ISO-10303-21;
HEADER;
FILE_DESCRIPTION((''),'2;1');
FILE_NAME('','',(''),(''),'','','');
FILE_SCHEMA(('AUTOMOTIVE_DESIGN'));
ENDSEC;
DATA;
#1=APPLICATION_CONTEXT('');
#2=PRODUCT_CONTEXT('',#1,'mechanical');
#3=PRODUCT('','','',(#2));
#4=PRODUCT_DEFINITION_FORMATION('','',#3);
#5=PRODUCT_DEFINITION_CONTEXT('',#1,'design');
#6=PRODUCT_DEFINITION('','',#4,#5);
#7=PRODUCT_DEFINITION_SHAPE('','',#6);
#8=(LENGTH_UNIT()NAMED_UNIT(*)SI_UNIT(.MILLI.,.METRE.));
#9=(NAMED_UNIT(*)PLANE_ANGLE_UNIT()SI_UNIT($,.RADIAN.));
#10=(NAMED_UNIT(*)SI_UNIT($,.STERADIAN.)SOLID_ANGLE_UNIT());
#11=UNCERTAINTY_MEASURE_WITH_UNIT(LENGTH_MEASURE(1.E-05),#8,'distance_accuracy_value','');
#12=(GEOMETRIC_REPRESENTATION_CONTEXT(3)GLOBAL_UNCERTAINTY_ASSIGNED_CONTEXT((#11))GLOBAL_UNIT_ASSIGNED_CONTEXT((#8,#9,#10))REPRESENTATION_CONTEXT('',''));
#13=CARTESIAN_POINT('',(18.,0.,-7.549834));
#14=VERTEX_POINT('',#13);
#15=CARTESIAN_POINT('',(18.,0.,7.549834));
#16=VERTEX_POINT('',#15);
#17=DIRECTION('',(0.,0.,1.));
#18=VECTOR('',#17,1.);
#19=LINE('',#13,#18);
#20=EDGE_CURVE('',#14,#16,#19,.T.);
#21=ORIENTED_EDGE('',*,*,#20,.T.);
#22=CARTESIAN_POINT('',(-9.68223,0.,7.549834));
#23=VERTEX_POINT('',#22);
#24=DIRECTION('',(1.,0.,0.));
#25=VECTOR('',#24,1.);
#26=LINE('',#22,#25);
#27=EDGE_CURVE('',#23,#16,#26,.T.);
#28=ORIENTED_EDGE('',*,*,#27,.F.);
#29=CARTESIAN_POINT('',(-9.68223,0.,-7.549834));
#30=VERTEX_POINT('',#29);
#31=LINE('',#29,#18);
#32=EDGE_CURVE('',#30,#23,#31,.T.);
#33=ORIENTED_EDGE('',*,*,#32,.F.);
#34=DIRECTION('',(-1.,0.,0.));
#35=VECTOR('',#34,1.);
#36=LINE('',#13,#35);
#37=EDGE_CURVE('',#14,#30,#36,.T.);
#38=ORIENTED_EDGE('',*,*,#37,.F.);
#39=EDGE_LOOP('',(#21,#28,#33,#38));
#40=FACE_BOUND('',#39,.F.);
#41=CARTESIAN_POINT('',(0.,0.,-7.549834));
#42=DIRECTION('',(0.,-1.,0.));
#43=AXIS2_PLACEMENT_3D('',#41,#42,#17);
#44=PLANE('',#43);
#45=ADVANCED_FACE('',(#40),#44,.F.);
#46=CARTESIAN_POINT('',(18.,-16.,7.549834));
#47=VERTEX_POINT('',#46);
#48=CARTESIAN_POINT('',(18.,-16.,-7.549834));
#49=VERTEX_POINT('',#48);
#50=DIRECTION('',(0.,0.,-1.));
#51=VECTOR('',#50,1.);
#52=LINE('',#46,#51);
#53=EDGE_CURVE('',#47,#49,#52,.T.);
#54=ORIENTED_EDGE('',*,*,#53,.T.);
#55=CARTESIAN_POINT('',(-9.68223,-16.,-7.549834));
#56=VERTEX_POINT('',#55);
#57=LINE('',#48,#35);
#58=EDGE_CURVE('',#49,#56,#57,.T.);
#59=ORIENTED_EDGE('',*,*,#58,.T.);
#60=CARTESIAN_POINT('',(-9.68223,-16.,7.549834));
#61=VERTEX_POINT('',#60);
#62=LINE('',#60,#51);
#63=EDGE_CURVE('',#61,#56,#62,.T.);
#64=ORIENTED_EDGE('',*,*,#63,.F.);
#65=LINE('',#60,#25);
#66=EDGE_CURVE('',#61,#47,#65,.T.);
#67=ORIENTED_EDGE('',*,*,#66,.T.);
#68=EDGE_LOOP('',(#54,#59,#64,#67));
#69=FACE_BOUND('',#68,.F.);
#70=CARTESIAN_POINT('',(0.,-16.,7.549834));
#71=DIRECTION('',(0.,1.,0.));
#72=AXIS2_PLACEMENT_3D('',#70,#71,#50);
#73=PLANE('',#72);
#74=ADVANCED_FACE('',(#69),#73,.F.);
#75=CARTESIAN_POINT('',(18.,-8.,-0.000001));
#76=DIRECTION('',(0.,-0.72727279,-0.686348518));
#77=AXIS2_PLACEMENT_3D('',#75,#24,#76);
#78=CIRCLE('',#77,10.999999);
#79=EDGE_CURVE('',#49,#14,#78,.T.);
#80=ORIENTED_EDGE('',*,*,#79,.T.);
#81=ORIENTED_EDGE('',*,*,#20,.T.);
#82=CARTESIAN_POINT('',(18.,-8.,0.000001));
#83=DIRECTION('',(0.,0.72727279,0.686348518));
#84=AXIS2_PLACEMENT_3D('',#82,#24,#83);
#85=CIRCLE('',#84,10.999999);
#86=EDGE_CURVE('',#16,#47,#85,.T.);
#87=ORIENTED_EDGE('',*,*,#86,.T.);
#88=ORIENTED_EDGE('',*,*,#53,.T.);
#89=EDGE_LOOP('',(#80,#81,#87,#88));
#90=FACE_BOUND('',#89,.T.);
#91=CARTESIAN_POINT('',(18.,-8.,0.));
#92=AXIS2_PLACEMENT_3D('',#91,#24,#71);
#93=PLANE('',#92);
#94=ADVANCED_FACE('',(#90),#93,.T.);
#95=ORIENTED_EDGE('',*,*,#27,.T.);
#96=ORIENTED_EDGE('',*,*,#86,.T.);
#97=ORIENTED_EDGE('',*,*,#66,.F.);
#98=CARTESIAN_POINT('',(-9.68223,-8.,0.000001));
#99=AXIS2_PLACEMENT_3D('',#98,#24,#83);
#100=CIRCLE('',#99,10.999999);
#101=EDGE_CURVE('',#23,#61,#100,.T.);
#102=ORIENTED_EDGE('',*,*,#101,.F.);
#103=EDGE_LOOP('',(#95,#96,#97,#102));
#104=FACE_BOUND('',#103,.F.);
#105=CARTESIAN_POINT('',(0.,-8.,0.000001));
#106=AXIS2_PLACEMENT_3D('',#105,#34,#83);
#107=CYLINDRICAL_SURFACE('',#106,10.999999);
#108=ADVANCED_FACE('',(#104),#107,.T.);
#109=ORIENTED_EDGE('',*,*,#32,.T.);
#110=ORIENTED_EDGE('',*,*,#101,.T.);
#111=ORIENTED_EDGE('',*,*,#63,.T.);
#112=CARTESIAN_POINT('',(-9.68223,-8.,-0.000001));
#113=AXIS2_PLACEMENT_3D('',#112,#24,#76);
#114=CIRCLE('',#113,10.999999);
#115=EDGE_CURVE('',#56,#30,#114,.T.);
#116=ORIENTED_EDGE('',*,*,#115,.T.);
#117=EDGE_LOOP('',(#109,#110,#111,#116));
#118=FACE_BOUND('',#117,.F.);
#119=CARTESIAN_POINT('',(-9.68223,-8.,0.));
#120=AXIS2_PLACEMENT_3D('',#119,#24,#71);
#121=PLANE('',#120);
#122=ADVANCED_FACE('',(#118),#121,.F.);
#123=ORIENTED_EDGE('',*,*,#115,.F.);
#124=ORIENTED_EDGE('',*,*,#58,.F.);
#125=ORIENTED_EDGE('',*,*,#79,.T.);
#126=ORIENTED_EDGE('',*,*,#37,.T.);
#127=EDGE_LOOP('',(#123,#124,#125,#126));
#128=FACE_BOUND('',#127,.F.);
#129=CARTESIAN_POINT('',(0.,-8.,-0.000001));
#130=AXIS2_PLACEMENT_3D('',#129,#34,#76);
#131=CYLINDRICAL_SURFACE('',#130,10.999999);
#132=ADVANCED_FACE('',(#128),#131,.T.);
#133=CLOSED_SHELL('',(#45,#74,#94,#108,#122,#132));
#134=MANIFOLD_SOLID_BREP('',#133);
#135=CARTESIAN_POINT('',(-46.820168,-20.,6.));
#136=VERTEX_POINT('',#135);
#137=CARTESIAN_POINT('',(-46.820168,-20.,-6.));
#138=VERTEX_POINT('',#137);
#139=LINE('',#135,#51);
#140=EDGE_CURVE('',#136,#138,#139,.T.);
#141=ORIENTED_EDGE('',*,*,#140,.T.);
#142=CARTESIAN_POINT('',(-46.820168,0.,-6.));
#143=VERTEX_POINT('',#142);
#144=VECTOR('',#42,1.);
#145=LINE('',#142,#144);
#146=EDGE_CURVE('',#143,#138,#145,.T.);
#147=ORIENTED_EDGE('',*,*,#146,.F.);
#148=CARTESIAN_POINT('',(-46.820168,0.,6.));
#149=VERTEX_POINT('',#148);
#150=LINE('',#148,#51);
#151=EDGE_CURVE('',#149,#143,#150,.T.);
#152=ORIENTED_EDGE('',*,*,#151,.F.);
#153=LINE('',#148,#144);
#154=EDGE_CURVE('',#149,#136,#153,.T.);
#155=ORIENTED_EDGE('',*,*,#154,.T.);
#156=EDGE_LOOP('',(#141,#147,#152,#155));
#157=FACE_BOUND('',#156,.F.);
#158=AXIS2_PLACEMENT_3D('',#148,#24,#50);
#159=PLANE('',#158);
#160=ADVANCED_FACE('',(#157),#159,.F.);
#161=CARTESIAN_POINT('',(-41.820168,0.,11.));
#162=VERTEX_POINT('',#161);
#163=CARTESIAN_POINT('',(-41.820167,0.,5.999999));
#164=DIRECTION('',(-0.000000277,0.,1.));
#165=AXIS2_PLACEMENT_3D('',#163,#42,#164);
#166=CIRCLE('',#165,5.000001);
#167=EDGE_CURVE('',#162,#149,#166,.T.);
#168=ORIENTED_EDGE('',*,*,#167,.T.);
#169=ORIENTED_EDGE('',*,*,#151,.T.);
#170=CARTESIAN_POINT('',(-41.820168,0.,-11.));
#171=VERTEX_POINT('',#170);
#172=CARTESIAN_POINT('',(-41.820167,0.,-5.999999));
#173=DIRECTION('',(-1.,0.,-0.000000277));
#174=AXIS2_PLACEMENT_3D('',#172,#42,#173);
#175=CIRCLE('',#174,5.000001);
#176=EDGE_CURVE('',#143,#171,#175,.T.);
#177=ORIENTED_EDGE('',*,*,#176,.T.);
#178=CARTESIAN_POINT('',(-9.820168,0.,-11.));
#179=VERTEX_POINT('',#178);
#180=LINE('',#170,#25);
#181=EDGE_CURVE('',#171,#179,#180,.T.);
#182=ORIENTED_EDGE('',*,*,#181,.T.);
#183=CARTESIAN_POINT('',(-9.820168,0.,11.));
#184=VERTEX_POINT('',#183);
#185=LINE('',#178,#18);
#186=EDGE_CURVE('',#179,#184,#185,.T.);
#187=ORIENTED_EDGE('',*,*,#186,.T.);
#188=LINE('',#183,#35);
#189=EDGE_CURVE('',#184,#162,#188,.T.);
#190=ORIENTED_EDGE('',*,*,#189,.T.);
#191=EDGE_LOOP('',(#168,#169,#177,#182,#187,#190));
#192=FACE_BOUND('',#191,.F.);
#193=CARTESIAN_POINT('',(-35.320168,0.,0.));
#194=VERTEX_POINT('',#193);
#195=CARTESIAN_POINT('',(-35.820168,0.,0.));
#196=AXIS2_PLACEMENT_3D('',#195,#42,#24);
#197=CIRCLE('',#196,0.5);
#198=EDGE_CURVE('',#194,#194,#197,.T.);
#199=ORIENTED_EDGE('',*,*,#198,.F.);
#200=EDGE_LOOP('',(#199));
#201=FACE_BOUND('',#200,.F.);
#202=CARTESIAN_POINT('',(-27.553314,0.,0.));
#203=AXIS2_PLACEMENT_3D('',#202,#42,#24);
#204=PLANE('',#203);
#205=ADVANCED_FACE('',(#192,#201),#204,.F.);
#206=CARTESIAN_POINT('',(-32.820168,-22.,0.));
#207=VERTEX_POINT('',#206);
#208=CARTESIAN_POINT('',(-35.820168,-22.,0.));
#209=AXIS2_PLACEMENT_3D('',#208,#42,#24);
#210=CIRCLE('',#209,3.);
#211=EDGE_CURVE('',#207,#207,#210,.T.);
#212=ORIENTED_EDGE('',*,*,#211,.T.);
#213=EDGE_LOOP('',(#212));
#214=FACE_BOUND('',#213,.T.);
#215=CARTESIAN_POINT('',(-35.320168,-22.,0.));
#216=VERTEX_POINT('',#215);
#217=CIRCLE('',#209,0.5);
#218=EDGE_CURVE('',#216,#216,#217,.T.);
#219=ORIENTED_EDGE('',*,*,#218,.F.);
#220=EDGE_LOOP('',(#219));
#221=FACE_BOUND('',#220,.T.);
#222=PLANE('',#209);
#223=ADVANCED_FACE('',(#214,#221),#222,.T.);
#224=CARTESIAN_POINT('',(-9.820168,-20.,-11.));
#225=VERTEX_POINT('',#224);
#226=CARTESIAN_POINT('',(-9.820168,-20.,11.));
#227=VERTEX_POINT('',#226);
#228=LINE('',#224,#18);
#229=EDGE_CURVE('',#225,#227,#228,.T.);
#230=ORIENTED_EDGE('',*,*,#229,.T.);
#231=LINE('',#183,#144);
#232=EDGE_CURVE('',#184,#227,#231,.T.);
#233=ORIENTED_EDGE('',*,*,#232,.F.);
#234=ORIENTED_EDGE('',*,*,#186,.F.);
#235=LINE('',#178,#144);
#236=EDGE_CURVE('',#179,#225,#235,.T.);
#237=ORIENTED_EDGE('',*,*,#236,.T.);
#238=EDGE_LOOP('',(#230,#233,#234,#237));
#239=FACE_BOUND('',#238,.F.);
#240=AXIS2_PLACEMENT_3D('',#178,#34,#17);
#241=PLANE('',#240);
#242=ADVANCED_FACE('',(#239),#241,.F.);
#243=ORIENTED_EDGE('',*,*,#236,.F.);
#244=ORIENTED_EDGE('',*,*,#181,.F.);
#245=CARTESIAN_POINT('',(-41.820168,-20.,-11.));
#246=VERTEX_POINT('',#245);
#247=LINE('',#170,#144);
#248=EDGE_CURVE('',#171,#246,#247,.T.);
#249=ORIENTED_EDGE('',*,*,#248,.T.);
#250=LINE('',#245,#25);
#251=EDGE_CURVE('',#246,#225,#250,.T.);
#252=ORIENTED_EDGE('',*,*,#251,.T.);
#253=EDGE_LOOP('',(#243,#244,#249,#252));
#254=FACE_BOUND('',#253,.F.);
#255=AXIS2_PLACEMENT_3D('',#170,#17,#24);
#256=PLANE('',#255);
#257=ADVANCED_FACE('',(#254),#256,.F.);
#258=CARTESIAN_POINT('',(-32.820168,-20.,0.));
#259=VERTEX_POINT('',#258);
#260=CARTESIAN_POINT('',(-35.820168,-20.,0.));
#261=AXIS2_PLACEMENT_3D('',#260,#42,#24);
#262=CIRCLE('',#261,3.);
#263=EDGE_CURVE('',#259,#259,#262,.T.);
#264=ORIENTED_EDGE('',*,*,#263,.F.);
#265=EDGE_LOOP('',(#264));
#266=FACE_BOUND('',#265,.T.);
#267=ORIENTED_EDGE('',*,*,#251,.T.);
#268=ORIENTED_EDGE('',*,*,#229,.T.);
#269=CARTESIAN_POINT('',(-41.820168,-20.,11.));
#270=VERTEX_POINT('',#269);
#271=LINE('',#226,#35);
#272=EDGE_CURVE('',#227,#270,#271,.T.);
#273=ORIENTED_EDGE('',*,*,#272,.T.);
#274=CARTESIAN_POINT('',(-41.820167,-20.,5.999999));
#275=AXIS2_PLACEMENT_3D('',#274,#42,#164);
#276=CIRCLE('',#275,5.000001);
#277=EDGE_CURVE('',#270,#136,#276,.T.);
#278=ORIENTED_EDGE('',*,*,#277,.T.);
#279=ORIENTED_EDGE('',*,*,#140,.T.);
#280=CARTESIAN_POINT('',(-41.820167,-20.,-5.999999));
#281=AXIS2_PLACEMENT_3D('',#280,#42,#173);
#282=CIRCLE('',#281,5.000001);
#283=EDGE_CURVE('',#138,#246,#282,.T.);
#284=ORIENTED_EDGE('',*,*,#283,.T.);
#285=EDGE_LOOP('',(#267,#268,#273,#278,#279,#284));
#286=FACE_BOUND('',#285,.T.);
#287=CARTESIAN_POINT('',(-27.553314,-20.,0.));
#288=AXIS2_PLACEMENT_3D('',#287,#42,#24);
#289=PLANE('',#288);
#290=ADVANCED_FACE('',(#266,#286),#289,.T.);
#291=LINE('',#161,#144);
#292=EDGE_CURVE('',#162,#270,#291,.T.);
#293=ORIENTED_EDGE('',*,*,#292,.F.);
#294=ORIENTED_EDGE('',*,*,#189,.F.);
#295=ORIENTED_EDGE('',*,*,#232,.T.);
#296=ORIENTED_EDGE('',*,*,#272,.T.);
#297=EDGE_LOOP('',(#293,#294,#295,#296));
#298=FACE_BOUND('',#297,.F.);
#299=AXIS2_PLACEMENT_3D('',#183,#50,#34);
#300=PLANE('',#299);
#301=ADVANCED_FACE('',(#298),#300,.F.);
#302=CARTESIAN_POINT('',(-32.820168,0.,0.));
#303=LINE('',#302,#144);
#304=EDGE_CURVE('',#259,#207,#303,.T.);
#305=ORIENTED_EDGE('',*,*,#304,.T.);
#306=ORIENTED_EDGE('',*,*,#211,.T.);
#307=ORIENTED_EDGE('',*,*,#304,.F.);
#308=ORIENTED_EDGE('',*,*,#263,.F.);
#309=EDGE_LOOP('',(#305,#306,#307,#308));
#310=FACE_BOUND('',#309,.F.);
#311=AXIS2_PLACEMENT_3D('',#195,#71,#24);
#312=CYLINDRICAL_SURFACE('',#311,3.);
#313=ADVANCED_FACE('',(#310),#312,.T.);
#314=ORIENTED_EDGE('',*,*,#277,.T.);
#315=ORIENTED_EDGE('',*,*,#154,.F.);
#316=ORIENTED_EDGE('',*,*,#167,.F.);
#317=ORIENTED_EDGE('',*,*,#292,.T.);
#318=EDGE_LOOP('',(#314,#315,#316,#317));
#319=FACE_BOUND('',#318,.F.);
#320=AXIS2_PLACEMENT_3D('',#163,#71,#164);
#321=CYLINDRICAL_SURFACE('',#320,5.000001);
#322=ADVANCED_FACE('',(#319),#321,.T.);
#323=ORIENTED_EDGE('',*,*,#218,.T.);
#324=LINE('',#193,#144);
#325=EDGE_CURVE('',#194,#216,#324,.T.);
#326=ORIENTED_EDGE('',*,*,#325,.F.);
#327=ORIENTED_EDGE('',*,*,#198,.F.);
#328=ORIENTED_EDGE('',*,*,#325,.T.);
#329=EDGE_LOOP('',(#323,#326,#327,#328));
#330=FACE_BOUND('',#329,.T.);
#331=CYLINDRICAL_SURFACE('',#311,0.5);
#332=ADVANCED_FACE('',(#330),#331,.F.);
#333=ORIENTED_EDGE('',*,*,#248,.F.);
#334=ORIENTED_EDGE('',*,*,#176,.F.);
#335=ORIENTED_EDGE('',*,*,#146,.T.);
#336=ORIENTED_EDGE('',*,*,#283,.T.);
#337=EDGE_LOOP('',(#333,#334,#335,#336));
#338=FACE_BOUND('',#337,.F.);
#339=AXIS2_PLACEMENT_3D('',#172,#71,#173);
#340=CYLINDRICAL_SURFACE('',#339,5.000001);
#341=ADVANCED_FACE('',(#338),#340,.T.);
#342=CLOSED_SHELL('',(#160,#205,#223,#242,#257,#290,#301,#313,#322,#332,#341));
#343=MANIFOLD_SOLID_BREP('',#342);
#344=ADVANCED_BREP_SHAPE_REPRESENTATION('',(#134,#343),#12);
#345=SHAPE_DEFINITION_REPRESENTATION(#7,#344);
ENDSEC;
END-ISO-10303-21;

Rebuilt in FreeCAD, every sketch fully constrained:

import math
import FreeCAD as App
import Part
import Sketcher
from FreeCAD import Vector
Q = App.Units.Quantity

doc = App.newDocument("Part")
params = doc.addObject("Spreadsheet::Sheet", "Params")
for row, (alias, value) in enumerate([
    ("sketch1_diameter", "6 mm"),
    ("sketch1_radius", "5.000001 mm"),
    ("sketch1_width", "32 mm"),
    ("sketch1_height", "12 mm"),
    ("pad1_length", "20 mm"),
    ("sketch2_diameter", "6 mm"),
    ("sketch2_diameter2", "1 mm"),
    ("pad2_length", "22 mm"),
    ("sketch3_radius", "10.999999 mm"),
    ("pad3_length", "9.68223 mm"),
    ("sketch4_radius", "10.999999 mm"),
    ("pad4_length", "18 mm"),
], start=1):
    params.set(f"A{row}", alias)
    params.set(f"B{row}", "=" + value)
    params.setAlias(f"B{row}", alias)

body = doc.addObject("PartDesign::Body", "Body")

# Sketch on XZ plane
sketch1 = body.newObject("Sketcher::SketchObject", "Sketch")
sketch1.AttachmentSupport = (doc.getObject("XZ_Plane"), [""])
sketch1.MapMode = "FlatFace"
sketch1.addGeometry(Part.LineSegment(Vector(-9.820168, 11, 0), Vector(-41.820168, 11, 0)), False)
sketch1.addGeometry(Part.ArcOfCircle(Part.Circle(Vector(-41.820167, 5.999999, 0), Vector(0, 0, 1), 5.000001), math.radians(90.000016), math.radians(179.999984)), False)
sketch1.addGeometry(Part.LineSegment(Vector(-46.820168, 6, 0), Vector(-46.820168, -6, 0)), False)
sketch1.addGeometry(Part.ArcOfCircle(Part.Circle(Vector(-41.820167, -5.999999, 0), Vector(0, 0, 1), 5.000001), math.radians(-179.999984), math.radians(-90.000016)), False)
sketch1.addGeometry(Part.LineSegment(Vector(-41.820168, -11, 0), Vector(-9.820168, -11, 0)), False)
sketch1.addGeometry(Part.LineSegment(Vector(-9.820168, -11, 0), Vector(-9.820168, 11, 0)), False)
sketch1.addGeometry(Part.Circle(Vector(-35.820168, 0, 0), Vector(0, 0, 1), 3), False)
sketch1.addConstraint(Sketcher.Constraint("Tangent", 0, 2, 1, 1))
sketch1.addConstraint(Sketcher.Constraint("Tangent", 1, 2, 2, 1))
sketch1.addConstraint(Sketcher.Constraint("Tangent", 2, 2, 3, 1))
sketch1.addConstraint(Sketcher.Constraint("Tangent", 3, 2, 4, 1))
sketch1.addConstraint(Sketcher.Constraint("Coincident", 4, 2, 5, 1))
sketch1.addConstraint(Sketcher.Constraint("Coincident", 5, 2, 0, 1))
sketch1.addConstraint(Sketcher.Constraint("Horizontal", 0))
sketch1.addConstraint(Sketcher.Constraint("Vertical", 2))
sketch1.addConstraint(Sketcher.Constraint("Horizontal", 4))
sketch1.addConstraint(Sketcher.Constraint("Vertical", 5))
sketch1.addConstraint(Sketcher.Constraint("Equal", 1, 3))
sketch1.addConstraint(Sketcher.Constraint("PointOnObject", 6, 3, -1))
sketch1.addConstraint(Sketcher.Constraint("Diameter", 6, Q("6 mm")))
sketch1.addConstraint(Sketcher.Constraint("Radius", 1, Q("5.000001 mm")))
sketch1.addConstraint(Sketcher.Constraint("DistanceX", 0, 2, 0, 1, Q("32 mm")))
sketch1.addConstraint(Sketcher.Constraint("DistanceY", 2, 2, 2, 1, Q("12 mm")))
sketch1.addConstraint(Sketcher.Constraint("DistanceY", -1, 1, 1, 3, Q("5.999999 mm")))
sketch1.addConstraint(Sketcher.Constraint("DistanceX", 1, 3, 6, 3, Q("5.999999 mm")))
sketch1.addConstraint(Sketcher.Constraint("DistanceX", 6, 3, -1, 1, Q("35.820168 mm")))
sketch1.setExpression("Constraints[12]", "Params.sketch1_diameter")
sketch1.setExpression("Constraints[13]", "Params.sketch1_radius")
sketch1.setExpression("Constraints[14]", "Params.sketch1_width")
sketch1.setExpression("Constraints[15]", "Params.sketch1_height")
pad1 = body.newObject("PartDesign::Pad", "Pad")
pad1.Profile = sketch1
pad1.setExpression("Length", "Params.pad1_length")

# Sketch on XZ plane
sketch2 = body.newObject("Sketcher::SketchObject", "Sketch001")
sketch2.AttachmentSupport = (doc.getObject("XZ_Plane"), [""])
sketch2.MapMode = "FlatFace"
sketch2.addGeometry(Part.Circle(Vector(-35.820168, 0, 0), Vector(0, 0, 1), 3), False)
sketch2.addGeometry(Part.Circle(Vector(-35.820168, 0, 0), Vector(0, 0, 1), 0.5), False)
sketch2.addConstraint(Sketcher.Constraint("Coincident", 1, 3, 0, 3))
sketch2.addConstraint(Sketcher.Constraint("PointOnObject", 0, 3, -1))
sketch2.addConstraint(Sketcher.Constraint("Diameter", 0, Q("6 mm")))
sketch2.addConstraint(Sketcher.Constraint("Diameter", 1, Q("1 mm")))
sketch2.addConstraint(Sketcher.Constraint("DistanceX", 0, 3, -1, 1, Q("35.820168 mm")))
sketch2.setExpression("Constraints[2]", "Params.sketch2_diameter")
sketch2.setExpression("Constraints[3]", "Params.sketch2_diameter2")
pad2 = body.newObject("PartDesign::Pad", "Pad001")
pad2.Profile = sketch2
pad2.setExpression("Length", "Params.pad2_length")
body2 = doc.addObject("PartDesign::Body", "Body001")

# Sketch on YZ plane
sketch3 = body2.newObject("Sketcher::SketchObject", "Sketch002")
sketch3.AttachmentSupport = (doc.getObject("YZ_Plane001"), [""])
sketch3.MapMode = "FlatFace"
sketch3.addGeometry(Part.ArcOfCircle(Part.Circle(Vector(-8, 0.000001, 0), Vector(0, 0, 1), 10.999999), math.radians(43.341753), math.radians(136.658247)), False)
sketch3.addGeometry(Part.LineSegment(Vector(-16, 7.549834, 0), Vector(-16, -7.549834, 0)), False)
sketch3.addGeometry(Part.ArcOfCircle(Part.Circle(Vector(-8, -0.000001, 0), Vector(0, 0, 1), 10.999999), math.radians(-136.658247), math.radians(-43.341753)), False)
sketch3.addGeometry(Part.LineSegment(Vector(0, -7.549834, 0), Vector(0, 7.549834, 0)), False)
sketch3.addConstraint(Sketcher.Constraint("Coincident", 0, 2, 1, 1))
sketch3.addConstraint(Sketcher.Constraint("Coincident", 1, 2, 2, 1))
sketch3.addConstraint(Sketcher.Constraint("Coincident", 2, 2, 3, 1))
sketch3.addConstraint(Sketcher.Constraint("Coincident", 3, 2, 0, 1))
sketch3.addConstraint(Sketcher.Constraint("Vertical", 1))
sketch3.addConstraint(Sketcher.Constraint("Vertical", 3))
sketch3.addConstraint(Sketcher.Constraint("Coincident", 2, 3, 0, 3))
sketch3.addConstraint(Sketcher.Constraint("Equal", 0, 2))
sketch3.addConstraint(Sketcher.Constraint("Symmetric", 2, 2, 3, 2, -1, 1))
sketch3.addConstraint(Sketcher.Constraint("Horizontal", 1, 2, 2, 2))
sketch3.addConstraint(Sketcher.Constraint("Radius", 0, Q("10.999999 mm")))
sketch3.addConstraint(Sketcher.Constraint("DistanceX", 0, 3, -1, 1, Q("8 mm")))
sketch3.setExpression("Constraints[10]", "Params.sketch3_radius")
pad3 = body2.newObject("PartDesign::Pad", "Pad002")
pad3.Profile = sketch3
pad3.setExpression("Length", "Params.pad3_length")
pad3.Reversed = True

# Sketch on YZ plane
sketch4 = body2.newObject("Sketcher::SketchObject", "Sketch003")
sketch4.AttachmentSupport = (doc.getObject("YZ_Plane001"), [""])
sketch4.MapMode = "FlatFace"
sketch4.addGeometry(Part.LineSegment(Vector(0, -7.549834, 0), Vector(0, 7.549834, 0)), False)
sketch4.addGeometry(Part.ArcOfCircle(Part.Circle(Vector(-8, 0.000001, 0), Vector(0, 0, 1), 10.999999), math.radians(43.341753), math.radians(136.658247)), False)
sketch4.addGeometry(Part.LineSegment(Vector(-16, 7.549834, 0), Vector(-16, -7.549834, 0)), False)
sketch4.addGeometry(Part.ArcOfCircle(Part.Circle(Vector(-8, -0.000001, 0), Vector(0, 0, 1), 10.999999), math.radians(-136.658247), math.radians(-43.341753)), False)
sketch4.addConstraint(Sketcher.Constraint("Coincident", 0, 2, 1, 1))
sketch4.addConstraint(Sketcher.Constraint("Coincident", 1, 2, 2, 1))
sketch4.addConstraint(Sketcher.Constraint("Coincident", 2, 2, 3, 1))
sketch4.addConstraint(Sketcher.Constraint("Coincident", 3, 2, 0, 1))
sketch4.addConstraint(Sketcher.Constraint("Vertical", 0))
sketch4.addConstraint(Sketcher.Constraint("Vertical", 2))
sketch4.addConstraint(Sketcher.Constraint("Coincident", 3, 3, 1, 3))
sketch4.addConstraint(Sketcher.Constraint("Equal", 1, 3))
sketch4.addConstraint(Sketcher.Constraint("Symmetric", 0, 2, 3, 2, -1, 1))
sketch4.addConstraint(Sketcher.Constraint("Horizontal", 0, 2, 1, 2))
sketch4.addConstraint(Sketcher.Constraint("Radius", 1, Q("10.999999 mm")))
sketch4.addConstraint(Sketcher.Constraint("DistanceX", 1, 3, -1, 1, Q("8 mm")))
sketch4.setExpression("Constraints[10]", "Params.sketch4_radius")
pad4 = body2.newObject("PartDesign::Pad", "Pad003")
pad4.Profile = sketch4
pad4.setExpression("Length", "Params.pad4_length")

doc.recompute()
